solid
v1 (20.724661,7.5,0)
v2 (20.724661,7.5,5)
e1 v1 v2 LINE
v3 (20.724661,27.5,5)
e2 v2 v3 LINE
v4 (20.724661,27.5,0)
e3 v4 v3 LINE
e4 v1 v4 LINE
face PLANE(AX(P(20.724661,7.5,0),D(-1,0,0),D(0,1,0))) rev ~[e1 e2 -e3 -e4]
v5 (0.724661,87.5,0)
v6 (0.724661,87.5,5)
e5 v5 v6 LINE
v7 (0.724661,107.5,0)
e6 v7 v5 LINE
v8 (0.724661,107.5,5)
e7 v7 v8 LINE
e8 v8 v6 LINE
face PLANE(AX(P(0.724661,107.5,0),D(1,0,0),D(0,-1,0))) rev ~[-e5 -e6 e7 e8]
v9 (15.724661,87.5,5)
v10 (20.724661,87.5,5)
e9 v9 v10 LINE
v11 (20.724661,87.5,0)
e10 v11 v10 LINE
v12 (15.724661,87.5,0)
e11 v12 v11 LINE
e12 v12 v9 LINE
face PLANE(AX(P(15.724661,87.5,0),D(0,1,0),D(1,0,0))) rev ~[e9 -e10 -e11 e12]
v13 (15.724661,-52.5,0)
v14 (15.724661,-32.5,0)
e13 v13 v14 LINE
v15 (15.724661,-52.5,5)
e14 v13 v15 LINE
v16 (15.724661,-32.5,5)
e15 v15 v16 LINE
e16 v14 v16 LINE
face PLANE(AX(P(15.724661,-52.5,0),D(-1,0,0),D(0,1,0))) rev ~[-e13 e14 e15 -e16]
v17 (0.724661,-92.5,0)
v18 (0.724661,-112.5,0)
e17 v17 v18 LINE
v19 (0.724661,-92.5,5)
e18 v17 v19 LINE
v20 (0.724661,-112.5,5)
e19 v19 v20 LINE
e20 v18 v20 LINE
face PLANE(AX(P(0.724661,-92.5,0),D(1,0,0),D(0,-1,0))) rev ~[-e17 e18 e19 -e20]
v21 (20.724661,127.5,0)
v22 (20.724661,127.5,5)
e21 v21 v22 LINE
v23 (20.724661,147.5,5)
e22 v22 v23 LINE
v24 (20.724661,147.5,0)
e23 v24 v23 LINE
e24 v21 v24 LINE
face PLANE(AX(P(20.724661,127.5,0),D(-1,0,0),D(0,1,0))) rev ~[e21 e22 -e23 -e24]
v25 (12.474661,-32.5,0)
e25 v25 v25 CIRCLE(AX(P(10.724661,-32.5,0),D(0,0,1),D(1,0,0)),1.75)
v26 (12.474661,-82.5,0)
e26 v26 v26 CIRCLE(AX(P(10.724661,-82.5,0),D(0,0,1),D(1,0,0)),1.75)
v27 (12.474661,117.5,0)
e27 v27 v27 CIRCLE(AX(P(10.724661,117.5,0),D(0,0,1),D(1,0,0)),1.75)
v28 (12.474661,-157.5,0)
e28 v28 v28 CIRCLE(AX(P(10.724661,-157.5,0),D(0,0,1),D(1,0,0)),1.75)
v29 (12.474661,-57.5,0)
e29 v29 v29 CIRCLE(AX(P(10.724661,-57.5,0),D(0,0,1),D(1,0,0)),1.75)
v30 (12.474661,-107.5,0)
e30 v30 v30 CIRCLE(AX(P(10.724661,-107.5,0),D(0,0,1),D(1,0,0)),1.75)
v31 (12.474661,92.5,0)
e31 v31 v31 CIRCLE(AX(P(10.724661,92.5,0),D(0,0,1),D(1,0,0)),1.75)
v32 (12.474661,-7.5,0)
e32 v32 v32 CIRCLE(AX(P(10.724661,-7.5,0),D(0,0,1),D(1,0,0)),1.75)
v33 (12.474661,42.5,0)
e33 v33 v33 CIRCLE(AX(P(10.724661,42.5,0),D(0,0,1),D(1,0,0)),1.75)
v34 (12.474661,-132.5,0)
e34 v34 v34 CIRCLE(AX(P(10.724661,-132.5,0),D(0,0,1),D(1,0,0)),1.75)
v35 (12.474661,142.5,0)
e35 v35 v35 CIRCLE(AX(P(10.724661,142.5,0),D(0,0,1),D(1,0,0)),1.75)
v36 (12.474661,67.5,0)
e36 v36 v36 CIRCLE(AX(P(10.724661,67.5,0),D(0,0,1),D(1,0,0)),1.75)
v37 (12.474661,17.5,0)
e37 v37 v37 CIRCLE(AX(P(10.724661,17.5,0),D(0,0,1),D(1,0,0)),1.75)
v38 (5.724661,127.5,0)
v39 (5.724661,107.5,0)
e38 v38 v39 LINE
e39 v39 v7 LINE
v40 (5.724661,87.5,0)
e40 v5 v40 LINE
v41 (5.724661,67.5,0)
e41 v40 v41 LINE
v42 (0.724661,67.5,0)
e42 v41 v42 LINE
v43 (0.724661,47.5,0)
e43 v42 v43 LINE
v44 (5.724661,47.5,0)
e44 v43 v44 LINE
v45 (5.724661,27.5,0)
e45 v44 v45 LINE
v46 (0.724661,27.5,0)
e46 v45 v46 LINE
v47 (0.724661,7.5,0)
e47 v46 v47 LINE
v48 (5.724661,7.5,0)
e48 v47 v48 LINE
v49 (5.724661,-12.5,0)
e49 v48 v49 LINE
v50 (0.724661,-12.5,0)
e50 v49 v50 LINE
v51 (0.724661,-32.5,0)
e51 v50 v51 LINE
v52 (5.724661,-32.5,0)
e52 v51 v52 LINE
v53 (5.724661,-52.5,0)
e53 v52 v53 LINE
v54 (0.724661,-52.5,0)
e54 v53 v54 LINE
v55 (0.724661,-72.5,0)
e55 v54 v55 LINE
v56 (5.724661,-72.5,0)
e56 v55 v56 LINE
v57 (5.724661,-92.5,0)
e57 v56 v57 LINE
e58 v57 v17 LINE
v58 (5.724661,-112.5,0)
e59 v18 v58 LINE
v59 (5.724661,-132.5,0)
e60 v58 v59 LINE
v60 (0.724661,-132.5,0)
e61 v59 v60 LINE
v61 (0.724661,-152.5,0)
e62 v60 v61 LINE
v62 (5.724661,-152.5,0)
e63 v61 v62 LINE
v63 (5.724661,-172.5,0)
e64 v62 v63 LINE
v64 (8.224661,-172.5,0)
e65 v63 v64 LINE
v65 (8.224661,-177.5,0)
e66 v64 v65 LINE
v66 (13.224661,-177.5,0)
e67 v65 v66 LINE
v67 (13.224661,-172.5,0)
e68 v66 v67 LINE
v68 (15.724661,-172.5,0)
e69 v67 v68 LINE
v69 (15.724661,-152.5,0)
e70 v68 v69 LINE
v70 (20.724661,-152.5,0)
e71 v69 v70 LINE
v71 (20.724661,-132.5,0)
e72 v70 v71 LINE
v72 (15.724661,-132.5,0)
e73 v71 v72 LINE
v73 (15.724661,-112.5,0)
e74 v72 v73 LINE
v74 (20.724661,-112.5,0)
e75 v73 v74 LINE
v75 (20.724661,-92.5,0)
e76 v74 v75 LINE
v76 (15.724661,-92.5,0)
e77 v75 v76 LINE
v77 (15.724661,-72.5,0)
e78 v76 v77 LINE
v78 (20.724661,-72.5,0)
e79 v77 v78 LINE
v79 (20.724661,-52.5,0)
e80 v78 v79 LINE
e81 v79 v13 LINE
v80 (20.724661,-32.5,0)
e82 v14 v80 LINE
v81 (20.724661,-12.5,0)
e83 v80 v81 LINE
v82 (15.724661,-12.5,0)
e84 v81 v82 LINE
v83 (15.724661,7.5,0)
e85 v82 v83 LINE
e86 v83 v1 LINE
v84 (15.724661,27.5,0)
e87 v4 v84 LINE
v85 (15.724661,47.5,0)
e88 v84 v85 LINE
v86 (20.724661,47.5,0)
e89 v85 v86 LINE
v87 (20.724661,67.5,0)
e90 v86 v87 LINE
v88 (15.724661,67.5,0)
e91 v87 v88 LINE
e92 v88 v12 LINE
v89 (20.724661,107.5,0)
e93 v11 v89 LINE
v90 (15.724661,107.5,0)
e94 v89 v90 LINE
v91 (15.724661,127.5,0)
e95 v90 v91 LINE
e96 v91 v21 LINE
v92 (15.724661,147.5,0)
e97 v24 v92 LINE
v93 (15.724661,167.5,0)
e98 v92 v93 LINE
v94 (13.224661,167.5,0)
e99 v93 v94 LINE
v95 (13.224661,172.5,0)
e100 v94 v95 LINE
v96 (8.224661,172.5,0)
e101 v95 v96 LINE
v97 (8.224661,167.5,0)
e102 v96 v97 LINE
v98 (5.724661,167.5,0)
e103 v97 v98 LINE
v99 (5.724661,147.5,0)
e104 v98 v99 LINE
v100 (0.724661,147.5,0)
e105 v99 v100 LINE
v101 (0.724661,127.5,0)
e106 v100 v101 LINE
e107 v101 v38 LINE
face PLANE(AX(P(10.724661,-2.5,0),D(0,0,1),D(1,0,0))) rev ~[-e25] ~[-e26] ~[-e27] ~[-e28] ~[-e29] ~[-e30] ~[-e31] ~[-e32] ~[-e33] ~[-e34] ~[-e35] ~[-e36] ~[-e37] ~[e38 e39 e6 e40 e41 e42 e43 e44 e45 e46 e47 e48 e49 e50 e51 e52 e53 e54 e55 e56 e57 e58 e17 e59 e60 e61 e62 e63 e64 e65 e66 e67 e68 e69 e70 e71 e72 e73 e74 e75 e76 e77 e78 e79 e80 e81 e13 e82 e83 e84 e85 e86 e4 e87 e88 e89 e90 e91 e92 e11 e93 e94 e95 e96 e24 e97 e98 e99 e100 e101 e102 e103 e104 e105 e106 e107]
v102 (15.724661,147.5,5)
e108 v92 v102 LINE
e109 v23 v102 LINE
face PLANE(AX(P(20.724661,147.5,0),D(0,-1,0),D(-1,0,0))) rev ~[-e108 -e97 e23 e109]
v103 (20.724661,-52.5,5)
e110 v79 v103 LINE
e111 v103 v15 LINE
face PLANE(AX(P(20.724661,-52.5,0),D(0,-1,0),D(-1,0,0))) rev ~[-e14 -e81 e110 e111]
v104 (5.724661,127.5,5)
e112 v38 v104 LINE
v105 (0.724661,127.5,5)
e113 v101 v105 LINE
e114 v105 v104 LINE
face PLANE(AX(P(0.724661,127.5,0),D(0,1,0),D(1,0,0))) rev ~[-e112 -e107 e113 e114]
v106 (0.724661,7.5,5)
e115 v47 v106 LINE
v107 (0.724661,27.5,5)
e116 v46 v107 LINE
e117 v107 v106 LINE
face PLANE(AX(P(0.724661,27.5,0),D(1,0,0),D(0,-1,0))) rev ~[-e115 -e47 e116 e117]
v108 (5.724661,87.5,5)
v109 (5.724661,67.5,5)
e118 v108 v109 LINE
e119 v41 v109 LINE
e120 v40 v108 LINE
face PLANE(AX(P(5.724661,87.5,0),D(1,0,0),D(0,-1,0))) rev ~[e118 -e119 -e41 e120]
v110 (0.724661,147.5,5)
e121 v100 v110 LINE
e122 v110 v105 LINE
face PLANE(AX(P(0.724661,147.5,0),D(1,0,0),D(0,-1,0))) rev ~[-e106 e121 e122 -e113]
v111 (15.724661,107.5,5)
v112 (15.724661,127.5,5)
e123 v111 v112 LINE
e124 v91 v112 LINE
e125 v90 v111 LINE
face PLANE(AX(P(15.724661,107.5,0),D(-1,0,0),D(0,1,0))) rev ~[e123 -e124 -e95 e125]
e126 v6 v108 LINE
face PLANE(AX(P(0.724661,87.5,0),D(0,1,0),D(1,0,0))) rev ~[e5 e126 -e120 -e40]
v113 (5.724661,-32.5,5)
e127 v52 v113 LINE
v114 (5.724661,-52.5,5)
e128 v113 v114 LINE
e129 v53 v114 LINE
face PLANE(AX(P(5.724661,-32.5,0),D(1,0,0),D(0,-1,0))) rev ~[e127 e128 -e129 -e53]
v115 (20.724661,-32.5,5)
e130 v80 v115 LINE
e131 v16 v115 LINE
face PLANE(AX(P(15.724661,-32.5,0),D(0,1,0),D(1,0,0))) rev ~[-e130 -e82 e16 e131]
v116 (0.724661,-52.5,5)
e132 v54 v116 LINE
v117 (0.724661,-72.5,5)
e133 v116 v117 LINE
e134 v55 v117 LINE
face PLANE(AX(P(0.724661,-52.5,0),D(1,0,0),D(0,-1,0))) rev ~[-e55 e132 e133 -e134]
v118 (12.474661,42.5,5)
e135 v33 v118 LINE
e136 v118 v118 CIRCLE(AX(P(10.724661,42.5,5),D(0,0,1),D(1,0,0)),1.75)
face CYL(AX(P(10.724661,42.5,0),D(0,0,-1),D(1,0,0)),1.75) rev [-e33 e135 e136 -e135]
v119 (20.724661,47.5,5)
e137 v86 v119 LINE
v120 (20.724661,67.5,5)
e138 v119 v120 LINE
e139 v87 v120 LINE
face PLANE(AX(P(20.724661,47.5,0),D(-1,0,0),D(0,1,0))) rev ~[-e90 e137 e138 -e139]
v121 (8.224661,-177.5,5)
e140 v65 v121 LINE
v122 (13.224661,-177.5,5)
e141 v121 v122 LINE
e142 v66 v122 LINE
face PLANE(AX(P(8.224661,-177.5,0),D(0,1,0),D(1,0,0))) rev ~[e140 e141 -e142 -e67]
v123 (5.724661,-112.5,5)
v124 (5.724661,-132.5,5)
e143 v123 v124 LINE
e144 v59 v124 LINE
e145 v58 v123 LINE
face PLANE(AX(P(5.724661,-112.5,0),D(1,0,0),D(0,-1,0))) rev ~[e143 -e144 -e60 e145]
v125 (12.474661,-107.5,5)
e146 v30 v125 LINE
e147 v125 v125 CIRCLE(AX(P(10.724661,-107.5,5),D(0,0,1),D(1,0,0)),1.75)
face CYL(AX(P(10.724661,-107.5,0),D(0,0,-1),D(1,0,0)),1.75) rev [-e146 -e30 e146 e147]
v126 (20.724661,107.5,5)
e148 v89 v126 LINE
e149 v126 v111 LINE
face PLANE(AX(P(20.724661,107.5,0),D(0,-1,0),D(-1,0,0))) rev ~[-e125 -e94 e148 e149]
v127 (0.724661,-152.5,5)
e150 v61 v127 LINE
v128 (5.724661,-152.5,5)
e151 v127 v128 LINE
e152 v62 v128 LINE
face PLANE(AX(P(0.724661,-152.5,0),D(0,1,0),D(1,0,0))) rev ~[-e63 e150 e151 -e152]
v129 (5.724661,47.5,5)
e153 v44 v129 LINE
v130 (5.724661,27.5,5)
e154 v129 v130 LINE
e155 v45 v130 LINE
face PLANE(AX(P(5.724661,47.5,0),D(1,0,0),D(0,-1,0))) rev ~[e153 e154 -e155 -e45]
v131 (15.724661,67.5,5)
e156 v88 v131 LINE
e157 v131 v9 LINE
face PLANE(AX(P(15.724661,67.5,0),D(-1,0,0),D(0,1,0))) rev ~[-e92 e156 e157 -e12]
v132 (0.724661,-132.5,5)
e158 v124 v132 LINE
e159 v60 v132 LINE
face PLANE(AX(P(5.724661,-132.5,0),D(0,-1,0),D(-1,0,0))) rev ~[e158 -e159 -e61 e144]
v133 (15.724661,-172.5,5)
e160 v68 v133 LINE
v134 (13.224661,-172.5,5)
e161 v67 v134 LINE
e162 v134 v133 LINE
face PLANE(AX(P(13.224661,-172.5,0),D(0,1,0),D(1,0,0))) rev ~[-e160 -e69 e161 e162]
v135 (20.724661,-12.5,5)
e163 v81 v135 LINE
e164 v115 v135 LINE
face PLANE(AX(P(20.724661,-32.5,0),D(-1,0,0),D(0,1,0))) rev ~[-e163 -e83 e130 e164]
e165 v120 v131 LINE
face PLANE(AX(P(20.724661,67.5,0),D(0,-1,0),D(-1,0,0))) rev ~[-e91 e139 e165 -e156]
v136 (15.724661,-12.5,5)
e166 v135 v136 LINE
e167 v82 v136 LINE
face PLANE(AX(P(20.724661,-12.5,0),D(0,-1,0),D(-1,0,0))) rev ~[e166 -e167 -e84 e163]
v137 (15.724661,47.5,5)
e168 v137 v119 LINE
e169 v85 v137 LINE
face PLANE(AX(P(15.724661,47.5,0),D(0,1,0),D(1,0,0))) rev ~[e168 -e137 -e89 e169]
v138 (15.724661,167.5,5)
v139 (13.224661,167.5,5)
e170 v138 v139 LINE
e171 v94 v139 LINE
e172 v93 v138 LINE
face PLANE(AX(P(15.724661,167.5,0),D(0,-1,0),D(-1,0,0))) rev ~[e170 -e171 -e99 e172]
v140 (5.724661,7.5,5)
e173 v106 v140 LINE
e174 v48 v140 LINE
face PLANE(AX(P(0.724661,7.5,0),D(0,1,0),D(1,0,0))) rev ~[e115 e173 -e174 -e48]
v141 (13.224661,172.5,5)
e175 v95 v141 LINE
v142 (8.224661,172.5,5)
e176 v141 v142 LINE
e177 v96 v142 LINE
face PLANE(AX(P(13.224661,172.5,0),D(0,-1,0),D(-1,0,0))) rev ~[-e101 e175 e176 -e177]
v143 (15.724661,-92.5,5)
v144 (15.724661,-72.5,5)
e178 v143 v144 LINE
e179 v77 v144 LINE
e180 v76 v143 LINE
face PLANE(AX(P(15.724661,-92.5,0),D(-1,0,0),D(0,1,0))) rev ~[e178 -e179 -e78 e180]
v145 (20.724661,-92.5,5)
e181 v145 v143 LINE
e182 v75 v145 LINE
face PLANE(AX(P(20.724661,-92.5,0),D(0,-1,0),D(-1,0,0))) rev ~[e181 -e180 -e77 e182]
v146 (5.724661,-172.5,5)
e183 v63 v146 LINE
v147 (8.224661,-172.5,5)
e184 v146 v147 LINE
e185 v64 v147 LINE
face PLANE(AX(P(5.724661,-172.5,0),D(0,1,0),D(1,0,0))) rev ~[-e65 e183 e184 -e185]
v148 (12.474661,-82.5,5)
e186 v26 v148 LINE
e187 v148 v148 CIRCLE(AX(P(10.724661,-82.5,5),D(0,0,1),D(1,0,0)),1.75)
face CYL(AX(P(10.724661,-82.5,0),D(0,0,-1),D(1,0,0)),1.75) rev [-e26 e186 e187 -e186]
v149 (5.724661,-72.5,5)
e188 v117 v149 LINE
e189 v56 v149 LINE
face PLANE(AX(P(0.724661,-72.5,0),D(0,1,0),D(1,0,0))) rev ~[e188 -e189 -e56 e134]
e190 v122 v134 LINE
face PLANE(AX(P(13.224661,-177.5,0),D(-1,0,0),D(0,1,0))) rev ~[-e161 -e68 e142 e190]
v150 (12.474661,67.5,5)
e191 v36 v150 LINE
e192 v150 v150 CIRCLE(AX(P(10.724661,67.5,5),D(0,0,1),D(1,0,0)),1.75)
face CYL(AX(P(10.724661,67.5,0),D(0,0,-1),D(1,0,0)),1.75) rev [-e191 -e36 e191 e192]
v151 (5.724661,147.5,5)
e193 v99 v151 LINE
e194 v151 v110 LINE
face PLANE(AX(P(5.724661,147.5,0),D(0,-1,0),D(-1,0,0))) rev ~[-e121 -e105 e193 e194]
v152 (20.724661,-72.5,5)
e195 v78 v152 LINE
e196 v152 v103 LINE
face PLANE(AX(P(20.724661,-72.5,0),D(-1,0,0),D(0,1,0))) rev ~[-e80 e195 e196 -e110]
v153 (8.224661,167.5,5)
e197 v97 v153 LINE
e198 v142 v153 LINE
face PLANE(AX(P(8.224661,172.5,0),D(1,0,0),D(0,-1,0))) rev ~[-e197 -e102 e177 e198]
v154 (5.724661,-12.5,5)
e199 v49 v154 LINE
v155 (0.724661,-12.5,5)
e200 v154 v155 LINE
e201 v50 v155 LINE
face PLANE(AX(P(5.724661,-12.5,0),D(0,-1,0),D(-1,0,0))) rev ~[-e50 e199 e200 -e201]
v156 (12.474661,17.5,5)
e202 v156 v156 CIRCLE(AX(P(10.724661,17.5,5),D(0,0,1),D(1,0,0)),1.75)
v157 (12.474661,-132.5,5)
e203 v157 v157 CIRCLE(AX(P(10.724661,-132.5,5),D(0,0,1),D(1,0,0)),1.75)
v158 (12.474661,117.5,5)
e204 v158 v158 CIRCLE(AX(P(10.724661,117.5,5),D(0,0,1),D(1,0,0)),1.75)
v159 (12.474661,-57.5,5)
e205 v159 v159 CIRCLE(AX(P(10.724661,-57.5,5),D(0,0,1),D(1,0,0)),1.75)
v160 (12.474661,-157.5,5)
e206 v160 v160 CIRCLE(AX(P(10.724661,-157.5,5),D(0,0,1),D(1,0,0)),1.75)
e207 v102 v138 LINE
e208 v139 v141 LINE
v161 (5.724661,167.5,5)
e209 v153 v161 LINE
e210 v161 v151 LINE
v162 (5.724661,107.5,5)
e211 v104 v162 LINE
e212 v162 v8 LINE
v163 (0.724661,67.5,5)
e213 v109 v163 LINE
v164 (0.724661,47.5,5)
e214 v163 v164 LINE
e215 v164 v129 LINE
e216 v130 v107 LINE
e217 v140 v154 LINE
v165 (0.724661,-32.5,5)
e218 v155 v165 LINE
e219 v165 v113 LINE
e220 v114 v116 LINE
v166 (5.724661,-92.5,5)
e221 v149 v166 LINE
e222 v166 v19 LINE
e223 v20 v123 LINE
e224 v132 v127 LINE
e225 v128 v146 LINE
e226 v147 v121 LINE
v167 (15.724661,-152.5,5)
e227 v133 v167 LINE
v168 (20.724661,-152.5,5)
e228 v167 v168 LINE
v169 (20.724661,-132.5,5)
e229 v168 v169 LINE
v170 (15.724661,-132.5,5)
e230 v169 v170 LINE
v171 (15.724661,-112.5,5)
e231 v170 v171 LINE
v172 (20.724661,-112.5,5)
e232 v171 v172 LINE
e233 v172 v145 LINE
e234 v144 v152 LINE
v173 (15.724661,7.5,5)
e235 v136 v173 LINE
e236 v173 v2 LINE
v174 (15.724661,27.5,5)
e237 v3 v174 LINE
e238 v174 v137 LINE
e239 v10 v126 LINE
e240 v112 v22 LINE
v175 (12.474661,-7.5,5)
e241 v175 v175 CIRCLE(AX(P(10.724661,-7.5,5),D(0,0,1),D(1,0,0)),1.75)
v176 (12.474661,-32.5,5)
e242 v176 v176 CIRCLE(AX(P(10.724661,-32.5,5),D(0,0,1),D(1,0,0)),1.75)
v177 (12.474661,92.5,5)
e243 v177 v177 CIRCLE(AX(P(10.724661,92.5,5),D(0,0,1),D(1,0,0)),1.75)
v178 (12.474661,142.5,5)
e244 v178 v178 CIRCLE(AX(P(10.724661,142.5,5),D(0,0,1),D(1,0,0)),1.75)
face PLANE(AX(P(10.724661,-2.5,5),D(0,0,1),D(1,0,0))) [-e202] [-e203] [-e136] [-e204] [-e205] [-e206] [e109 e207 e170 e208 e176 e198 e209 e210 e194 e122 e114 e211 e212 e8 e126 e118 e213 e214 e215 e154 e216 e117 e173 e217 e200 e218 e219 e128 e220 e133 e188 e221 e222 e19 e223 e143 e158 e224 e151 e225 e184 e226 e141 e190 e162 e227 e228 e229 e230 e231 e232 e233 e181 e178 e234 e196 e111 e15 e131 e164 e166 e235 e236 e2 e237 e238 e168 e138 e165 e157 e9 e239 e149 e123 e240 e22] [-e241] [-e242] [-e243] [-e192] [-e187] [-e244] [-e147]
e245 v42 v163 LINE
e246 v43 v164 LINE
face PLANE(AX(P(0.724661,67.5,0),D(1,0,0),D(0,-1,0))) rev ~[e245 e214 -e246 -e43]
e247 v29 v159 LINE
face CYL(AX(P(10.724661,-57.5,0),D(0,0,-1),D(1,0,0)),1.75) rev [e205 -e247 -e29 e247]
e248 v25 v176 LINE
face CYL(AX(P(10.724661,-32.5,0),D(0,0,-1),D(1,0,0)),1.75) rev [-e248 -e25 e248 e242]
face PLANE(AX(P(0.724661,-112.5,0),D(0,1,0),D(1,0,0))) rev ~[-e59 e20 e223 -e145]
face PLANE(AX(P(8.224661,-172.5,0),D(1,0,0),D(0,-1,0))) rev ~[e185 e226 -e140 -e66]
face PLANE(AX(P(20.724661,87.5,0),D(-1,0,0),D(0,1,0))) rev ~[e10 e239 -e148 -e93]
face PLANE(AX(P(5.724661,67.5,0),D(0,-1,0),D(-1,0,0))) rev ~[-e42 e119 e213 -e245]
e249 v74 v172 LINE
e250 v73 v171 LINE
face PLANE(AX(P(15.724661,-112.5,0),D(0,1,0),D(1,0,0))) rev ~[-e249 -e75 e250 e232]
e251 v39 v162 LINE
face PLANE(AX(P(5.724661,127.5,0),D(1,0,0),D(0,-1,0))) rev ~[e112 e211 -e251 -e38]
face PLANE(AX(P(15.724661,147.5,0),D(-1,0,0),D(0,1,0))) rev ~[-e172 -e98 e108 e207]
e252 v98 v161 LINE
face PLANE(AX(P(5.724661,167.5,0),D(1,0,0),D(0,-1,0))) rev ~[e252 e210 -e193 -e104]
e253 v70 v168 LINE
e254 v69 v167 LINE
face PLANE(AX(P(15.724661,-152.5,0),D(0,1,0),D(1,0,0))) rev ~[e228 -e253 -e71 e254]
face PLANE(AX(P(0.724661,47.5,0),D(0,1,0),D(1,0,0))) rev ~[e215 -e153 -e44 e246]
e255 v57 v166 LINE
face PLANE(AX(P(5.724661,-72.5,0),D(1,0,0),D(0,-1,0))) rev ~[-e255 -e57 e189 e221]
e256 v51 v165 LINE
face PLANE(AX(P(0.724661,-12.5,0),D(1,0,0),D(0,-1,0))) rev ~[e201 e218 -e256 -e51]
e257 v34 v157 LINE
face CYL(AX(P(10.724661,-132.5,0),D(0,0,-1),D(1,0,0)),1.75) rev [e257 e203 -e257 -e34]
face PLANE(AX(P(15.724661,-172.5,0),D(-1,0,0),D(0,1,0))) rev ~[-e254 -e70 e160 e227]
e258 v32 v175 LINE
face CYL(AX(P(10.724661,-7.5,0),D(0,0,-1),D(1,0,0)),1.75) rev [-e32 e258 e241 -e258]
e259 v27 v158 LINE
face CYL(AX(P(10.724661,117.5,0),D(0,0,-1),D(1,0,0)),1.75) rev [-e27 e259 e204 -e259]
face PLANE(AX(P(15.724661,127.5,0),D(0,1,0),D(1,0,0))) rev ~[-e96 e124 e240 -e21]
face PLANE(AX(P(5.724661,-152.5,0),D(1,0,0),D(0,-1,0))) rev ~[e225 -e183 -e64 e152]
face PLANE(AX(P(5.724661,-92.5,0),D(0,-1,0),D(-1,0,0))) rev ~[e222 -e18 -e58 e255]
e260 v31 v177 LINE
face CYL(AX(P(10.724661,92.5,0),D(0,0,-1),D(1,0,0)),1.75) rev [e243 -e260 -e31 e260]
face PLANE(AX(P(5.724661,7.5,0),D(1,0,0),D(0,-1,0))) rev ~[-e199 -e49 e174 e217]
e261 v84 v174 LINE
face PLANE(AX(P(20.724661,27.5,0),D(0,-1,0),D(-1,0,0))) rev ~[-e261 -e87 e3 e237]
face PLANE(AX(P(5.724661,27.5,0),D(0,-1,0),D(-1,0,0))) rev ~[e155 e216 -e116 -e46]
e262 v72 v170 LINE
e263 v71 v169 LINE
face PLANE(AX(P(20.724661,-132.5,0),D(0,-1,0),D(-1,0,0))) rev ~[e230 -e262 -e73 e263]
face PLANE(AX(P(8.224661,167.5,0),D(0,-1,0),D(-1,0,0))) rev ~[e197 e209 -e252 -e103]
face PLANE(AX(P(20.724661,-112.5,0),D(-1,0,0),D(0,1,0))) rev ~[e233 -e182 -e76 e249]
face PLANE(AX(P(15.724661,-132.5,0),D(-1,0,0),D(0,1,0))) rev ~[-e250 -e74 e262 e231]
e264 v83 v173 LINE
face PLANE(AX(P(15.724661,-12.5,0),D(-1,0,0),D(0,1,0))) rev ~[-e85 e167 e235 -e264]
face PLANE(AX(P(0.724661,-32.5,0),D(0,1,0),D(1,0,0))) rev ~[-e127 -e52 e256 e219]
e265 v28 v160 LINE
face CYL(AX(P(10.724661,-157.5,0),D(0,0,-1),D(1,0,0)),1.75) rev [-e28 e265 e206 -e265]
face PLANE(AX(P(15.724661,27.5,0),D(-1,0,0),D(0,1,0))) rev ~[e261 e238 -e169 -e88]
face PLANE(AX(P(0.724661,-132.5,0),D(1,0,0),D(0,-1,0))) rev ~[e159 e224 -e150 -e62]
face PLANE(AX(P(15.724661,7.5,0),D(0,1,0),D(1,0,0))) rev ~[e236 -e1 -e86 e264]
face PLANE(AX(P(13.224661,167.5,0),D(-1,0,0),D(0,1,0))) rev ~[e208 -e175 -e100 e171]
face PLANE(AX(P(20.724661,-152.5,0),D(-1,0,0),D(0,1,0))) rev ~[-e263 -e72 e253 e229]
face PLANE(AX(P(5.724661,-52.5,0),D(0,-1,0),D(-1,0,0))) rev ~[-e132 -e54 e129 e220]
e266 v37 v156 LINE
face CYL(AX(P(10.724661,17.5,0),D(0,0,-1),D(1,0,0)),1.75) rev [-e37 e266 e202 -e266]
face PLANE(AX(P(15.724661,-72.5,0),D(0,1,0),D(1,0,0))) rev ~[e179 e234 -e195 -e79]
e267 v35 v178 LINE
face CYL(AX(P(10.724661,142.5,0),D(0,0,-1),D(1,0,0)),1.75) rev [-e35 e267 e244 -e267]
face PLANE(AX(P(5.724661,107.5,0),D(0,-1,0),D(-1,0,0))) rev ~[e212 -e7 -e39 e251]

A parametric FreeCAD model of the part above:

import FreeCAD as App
import Part
import Sketcher

doc = App.newDocument("Part")
body = doc.addObject("PartDesign::Body", "Body")

sketch1 = doc.addObject("Sketcher::SketchObject", "Sketch")
body.addObject(sketch1)
sketch1.AttachmentSupport = (doc.XY_Plane, [""])
sketch1.MapMode = "FlatFace"
sketch1.addGeometry(Part.LineSegment(App.Vector(8.224661, 172.5, 0), App.Vector(8.224661, 167.5, 0)), False)
sketch1.addGeometry(Part.LineSegment(App.Vector(8.224661, 167.5, 0), App.Vector(5.724661, 167.5, 0)), False)
sketch1.addGeometry(Part.LineSegment(App.Vector(5.724661, 167.5, 0), App.Vector(5.724661, 147.5, 0)), False)
sketch1.addGeometry(Part.LineSegment(App.Vector(5.724661, 147.5, 0), App.Vector(0.724661, 147.5, 0)), False)
sketch1.addGeometry(Part.LineSegment(App.Vector(0.724661, 147.5, 0), App.Vector(0.724661, 127.5, 0)), False)
sketch1.addGeometry(Part.LineSegment(App.Vector(0.724661, 127.5, 0), App.Vector(5.724661, 127.5, 0)), False)
sketch1.addGeometry(Part.LineSegment(App.Vector(5.724661, 127.5, 0), App.Vector(5.724661, 107.5, 0)), False)
sketch1.addGeometry(Part.LineSegment(App.Vector(5.724661, 107.5, 0), App.Vector(0.724661, 107.5, 0)), False)
sketch1.addGeometry(Part.LineSegment(App.Vector(0.724661, 107.5, 0), App.Vector(0.724661, 87.5, 0)), False)
sketch1.addGeometry(Part.LineSegment(App.Vector(0.724661, 87.5, 0), App.Vector(5.724661, 87.5, 0)), False)
sketch1.addGeometry(Part.LineSegment(App.Vector(5.724661, 87.5, 0), App.Vector(5.724661, 67.5, 0)), False)
sketch1.addGeometry(Part.LineSegment(App.Vector(5.724661, 67.5, 0), App.Vector(0.724661, 67.5, 0)), False)
sketch1.addGeometry(Part.LineSegment(App.Vector(0.724661, 67.5, 0), App.Vector(0.724661, 47.5, 0)), False)
sketch1.addGeometry(Part.LineSegment(App.Vector(0.724661, 47.5, 0), App.Vector(5.724661, 47.5, 0)), False)
sketch1.addGeometry(Part.LineSegment(App.Vector(5.724661, 47.5, 0), App.Vector(5.724661, 27.5, 0)), False)
sketch1.addGeometry(Part.LineSegment(App.Vector(5.724661, 27.5, 0), App.Vector(0.724661, 27.5, 0)), False)
sketch1.addGeometry(Part.LineSegment(App.Vector(0.724661, 27.5, 0), App.Vector(0.724661, 7.5, 0)), False)
sketch1.addGeometry(Part.LineSegment(App.Vector(0.724661, 7.5, 0), App.Vector(5.724661, 7.5, 0)), False)
sketch1.addGeometry(Part.LineSegment(App.Vector(5.724661, 7.5, 0), App.Vector(5.724661, -12.5, 0)), False)
sketch1.addGeometry(Part.LineSegment(App.Vector(5.724661, -12.5, 0), App.Vector(0.724661, -12.5, 0)), False)
sketch1.addGeometry(Part.LineSegment(App.Vector(0.724661, -12.5, 0), App.Vector(0.724661, -32.5, 0)), False)
sketch1.addGeometry(Part.LineSegment(App.Vector(0.724661, -32.5, 0), App.Vector(5.724661, -32.5, 0)), False)
sketch1.addGeometry(Part.LineSegment(App.Vector(5.724661, -32.5, 0), App.Vector(5.724661, -52.5, 0)), False)
sketch1.addGeometry(Part.LineSegment(App.Vector(5.724661, -52.5, 0), App.Vector(0.724661, -52.5, 0)), False)
sketch1.addGeometry(Part.LineSegment(App.Vector(0.724661, -52.5, 0), App.Vector(0.724661, -72.5, 0)), False)
sketch1.addGeometry(Part.LineSegment(App.Vector(0.724661, -72.5, 0), App.Vector(5.724661, -72.5, 0)), False)
sketch1.addGeometry(Part.LineSegment(App.Vector(5.724661, -72.5, 0), App.Vector(5.724661, -92.5, 0)), False)
sketch1.addGeometry(Part.LineSegment(App.Vector(5.724661, -92.5, 0), App.Vector(0.724661, -92.5, 0)), False)
sketch1.addGeometry(Part.LineSegment(App.Vector(0.724661, -92.5, 0), App.Vector(0.724661, -112.5, 0)), False)
sketch1.addGeometry(Part.LineSegment(App.Vector(0.724661, -112.5, 0), App.Vector(5.724661, -112.5, 0)), False)
sketch1.addGeometry(Part.LineSegment(App.Vector(5.724661, -112.5, 0), App.Vector(5.724661, -132.5, 0)), False)
sketch1.addGeometry(Part.LineSegment(App.Vector(5.724661, -132.5, 0), App.Vector(0.724661, -132.5, 0)), False)
sketch1.addGeometry(Part.LineSegment(App.Vector(0.724661, -132.5, 0), App.Vector(0.724661, -152.5, 0)), False)
sketch1.addGeometry(Part.LineSegment(App.Vector(0.724661, -152.5, 0), App.Vector(5.724661, -152.5, 0)), False)
sketch1.addGeometry(Part.LineSegment(App.Vector(5.724661, -152.5, 0), App.Vector(5.724661, -172.5, 0)), False)
sketch1.addGeometry(Part.LineSegment(App.Vector(5.724661, -172.5, 0), App.Vector(8.224661, -172.5, 0)), False)
sketch1.addGeometry(Part.LineSegment(App.Vector(8.224661, -172.5, 0), App.Vector(8.224661, -177.5, 0)), False)
sketch1.addGeometry(Part.LineSegment(App.Vector(8.224661, -177.5, 0), App.Vector(13.224661, -177.5, 0)), False)
sketch1.addGeometry(Part.LineSegment(App.Vector(13.224661, -177.5, 0), App.Vector(13.224661, -172.5, 0)), False)
sketch1.addGeometry(Part.LineSegment(App.Vector(13.224661, -172.5, 0), App.Vector(15.724661, -172.5, 0)), False)
sketch1.addGeometry(Part.LineSegment(App.Vector(15.724661, -172.5, 0), App.Vector(15.724661, -152.5, 0)), False)
sketch1.addGeometry(Part.LineSegment(App.Vector(15.724661, -152.5, 0), App.Vector(20.724661, -152.5, 0)), False)
sketch1.addGeometry(Part.LineSegment(App.Vector(20.724661, -152.5, 0), App.Vector(20.724661, -132.5, 0)), False)
sketch1.addGeometry(Part.LineSegment(App.Vector(20.724661, -132.5, 0), App.Vector(15.724661, -132.5, 0)), False)
sketch1.addGeometry(Part.LineSegment(App.Vector(15.724661, -132.5, 0), App.Vector(15.724661, -112.5, 0)), False)
sketch1.addGeometry(Part.LineSegment(App.Vector(15.724661, -112.5, 0), App.Vector(20.724661, -112.5, 0)), False)
sketch1.addGeometry(Part.LineSegment(App.Vector(20.724661, -112.5, 0), App.Vector(20.724661, -92.5, 0)), False)
sketch1.addGeometry(Part.LineSegment(App.Vector(20.724661, -92.5, 0), App.Vector(15.724661, -92.5, 0)), False)
sketch1.addGeometry(Part.LineSegment(App.Vector(15.724661, -92.5, 0), App.Vector(15.724661, -72.5, 0)), False)
sketch1.addGeometry(Part.LineSegment(App.Vector(15.724661, -72.5, 0), App.Vector(20.724661, -72.5, 0)), False)
sketch1.addGeometry(Part.LineSegment(App.Vector(20.724661, -72.5, 0), App.Vector(20.724661, -52.5, 0)), False)
sketch1.addGeometry(Part.LineSegment(App.Vector(20.724661, -52.5, 0), App.Vector(15.724661, -52.5, 0)), False)
sketch1.addGeometry(Part.LineSegment(App.Vector(15.724661, -52.5, 0), App.Vector(15.724661, -32.5, 0)), False)
sketch1.addGeometry(Part.LineSegment(App.Vector(15.724661, -32.5, 0), App.Vector(20.724661, -32.5, 0)), False)
sketch1.addGeometry(Part.LineSegment(App.Vector(20.724661, -32.5, 0), App.Vector(20.724661, -12.5, 0)), False)
sketch1.addGeometry(Part.LineSegment(App.Vector(20.724661, -12.5, 0), App.Vector(15.724661, -12.5, 0)), False)
sketch1.addGeometry(Part.LineSegment(App.Vector(15.724661, -12.5, 0), App.Vector(15.724661, 7.5, 0)), False)
sketch1.addGeometry(Part.LineSegment(App.Vector(15.724661, 7.5, 0), App.Vector(20.724661, 7.5, 0)), False)
sketch1.addGeometry(Part.LineSegment(App.Vector(20.724661, 7.5, 0), App.Vector(20.724661, 27.5, 0)), False)
sketch1.addGeometry(Part.LineSegment(App.Vector(20.724661, 27.5, 0), App.Vector(15.724661, 27.5, 0)), False)
sketch1.addGeometry(Part.LineSegment(App.Vector(15.724661, 27.5, 0), App.Vector(15.724661, 47.5, 0)), False)
sketch1.addGeometry(Part.LineSegment(App.Vector(15.724661, 47.5, 0), App.Vector(20.724661, 47.5, 0)), False)
sketch1.addGeometry(Part.LineSegment(App.Vector(20.724661, 47.5, 0), App.Vector(20.724661, 67.5, 0)), False)
sketch1.addGeometry(Part.LineSegment(App.Vector(20.724661, 67.5, 0), App.Vector(15.724661, 67.5, 0)), False)
sketch1.addGeometry(Part.LineSegment(App.Vector(15.724661, 67.5, 0), App.Vector(15.724661, 87.5, 0)), False)
sketch1.addGeometry(Part.LineSegment(App.Vector(15.724661, 87.5, 0), App.Vector(20.724661, 87.5, 0)), False)
sketch1.addGeometry(Part.LineSegment(App.Vector(20.724661, 87.5, 0), App.Vector(20.724661, 107.5, 0)), False)
sketch1.addGeometry(Part.LineSegment(App.Vector(20.724661, 107.5, 0), App.Vector(15.724661, 107.5, 0)), False)
sketch1.addGeometry(Part.LineSegment(App.Vector(15.724661, 107.5, 0), App.Vector(15.724661, 127.5, 0)), False)
sketch1.addGeometry(Part.LineSegment(App.Vector(15.724661, 127.5, 0), App.Vector(20.724661, 127.5, 0)), False)
sketch1.addGeometry(Part.LineSegment(App.Vector(20.724661, 127.5, 0), App.Vector(20.724661, 147.5, 0)), False)
sketch1.addGeometry(Part.LineSegment(App.Vector(20.724661, 147.5, 0), App.Vector(15.724661, 147.5, 0)), False)
sketch1.addGeometry(Part.LineSegment(App.Vector(15.724661, 147.5, 0), App.Vector(15.724661, 167.5, 0)), False)
sketch1.addGeometry(Part.LineSegment(App.Vector(15.724661, 167.5, 0), App.Vector(13.224661, 167.5, 0)), False)
sketch1.addGeometry(Part.LineSegment(App.Vector(13.224661, 167.5, 0), App.Vector(13.224661, 172.5, 0)), False)
sketch1.addGeometry(Part.LineSegment(App.Vector(13.224661, 172.5, 0), App.Vector(8.224661, 172.5, 0)), False)
sketch1.addGeometry(Part.Circle(App.Vector(10.724661, -157.5, 0), App.Vector(0, 0, 1), 1.75), False)
sketch1.addGeometry(Part.Circle(App.Vector(10.724661, -132.5, 0), App.Vector(0, 0, 1), 1.75), False)
sketch1.addGeometry(Part.Circle(App.Vector(10.724661, -107.5, 0), App.Vector(0, 0, 1), 1.75), False)
sketch1.addGeometry(Part.Circle(App.Vector(10.724661, -82.5, 0), App.Vector(0, 0, 1), 1.75), False)
sketch1.addGeometry(Part.Circle(App.Vector(10.724661, -57.5, 0), App.Vector(0, 0, 1), 1.75), False)
sketch1.addGeometry(Part.Circle(App.Vector(10.724661, -32.5, 0), App.Vector(0, 0, 1), 1.75), False)
sketch1.addGeometry(Part.Circle(App.Vector(10.724661, -7.5, 0), App.Vector(0, 0, 1), 1.75), False)
sketch1.addGeometry(Part.Circle(App.Vector(10.724661, 17.5, 0), App.Vector(0, 0, 1), 1.75), False)
sketch1.addGeometry(Part.Circle(App.Vector(10.724661, 42.5, 0), App.Vector(0, 0, 1), 1.75), False)
sketch1.addGeometry(Part.Circle(App.Vector(10.724661, 67.5, 0), App.Vector(0, 0, 1), 1.75), False)
sketch1.addGeometry(Part.Circle(App.Vector(10.724661, 92.5, 0), App.Vector(0, 0, 1), 1.75), False)
sketch1.addGeometry(Part.Circle(App.Vector(10.724661, 117.5, 0), App.Vector(0, 0, 1), 1.75), False)
sketch1.addGeometry(Part.Circle(App.Vector(10.724661, 142.5, 0), App.Vector(0, 0, 1), 1.75), False)
sketch1.addConstraint(Sketcher.Constraint("Coincident", 0, 2, 1, 1))
sketch1.addConstraint(Sketcher.Constraint("Coincident", 1, 2, 2, 1))
sketch1.addConstraint(Sketcher.Constraint("Coincident", 2, 2, 3, 1))
sketch1.addConstraint(Sketcher.Constraint("Coincident", 3, 2, 4, 1))
sketch1.addConstraint(Sketcher.Constraint("Coincident", 4, 2, 5, 1))
sketch1.addConstraint(Sketcher.Constraint("Coincident", 5, 2, 6, 1))
sketch1.addConstraint(Sketcher.Constraint("Coincident", 6, 2, 7, 1))
sketch1.addConstraint(Sketcher.Constraint("Coincident", 7, 2, 8, 1))
sketch1.addConstraint(Sketcher.Constraint("Coincident", 8, 2, 9, 1))
sketch1.addConstraint(Sketcher.Constraint("Coincident", 9, 2, 10, 1))
sketch1.addConstraint(Sketcher.Constraint("Coincident", 10, 2, 11, 1))
sketch1.addConstraint(Sketcher.Constraint("Coincident", 11, 2, 12, 1))
sketch1.addConstraint(Sketcher.Constraint("Coincident", 12, 2, 13, 1))
sketch1.addConstraint(Sketcher.Constraint("Coincident", 13, 2, 14, 1))
sketch1.addConstraint(Sketcher.Constraint("Coincident", 14, 2, 15, 1))
sketch1.addConstraint(Sketcher.Constraint("Coincident", 15, 2, 16, 1))
sketch1.addConstraint(Sketcher.Constraint("Coincident", 16, 2, 17, 1))
sketch1.addConstraint(Sketcher.Constraint("Coincident", 17, 2, 18, 1))
sketch1.addConstraint(Sketcher.Constraint("Coincident", 18, 2, 19, 1))
sketch1.addConstraint(Sketcher.Constraint("Coincident", 19, 2, 20, 1))
sketch1.addConstraint(Sketcher.Constraint("Coincident", 20, 2, 21, 1))
sketch1.addConstraint(Sketcher.Constraint("Coincident", 21, 2, 22, 1))
sketch1.addConstraint(Sketcher.Constraint("Coincident", 22, 2, 23, 1))
sketch1.addConstraint(Sketcher.Constraint("Coincident", 23, 2, 24, 1))
sketch1.addConstraint(Sketcher.Constraint("Coincident", 24, 2, 25, 1))
sketch1.addConstraint(Sketcher.Constraint("Coincident", 25, 2, 26, 1))
sketch1.addConstraint(Sketcher.Constraint("Coincident", 26, 2, 27, 1))
sketch1.addConstraint(Sketcher.Constraint("Coincident", 27, 2, 28, 1))
sketch1.addConstraint(Sketcher.Constraint("Coincident", 28, 2, 29, 1))
sketch1.addConstraint(Sketcher.Constraint("Coincident", 29, 2, 30, 1))
sketch1.addConstraint(Sketcher.Constraint("Coincident", 30, 2, 31, 1))
sketch1.addConstraint(Sketcher.Constraint("Coincident", 31, 2, 32, 1))
sketch1.addConstraint(Sketcher.Constraint("Coincident", 32, 2, 33, 1))
sketch1.addConstraint(Sketcher.Constraint("Coincident", 33, 2, 34, 1))
sketch1.addConstraint(Sketcher.Constraint("Coincident", 34, 2, 35, 1))
sketch1.addConstraint(Sketcher.Constraint("Coincident", 35, 2, 36, 1))
sketch1.addConstraint(Sketcher.Constraint("Coincident", 36, 2, 37, 1))
sketch1.addConstraint(Sketcher.Constraint("Coincident", 37, 2, 38, 1))
sketch1.addConstraint(Sketcher.Constraint("Coincident", 38, 2, 39, 1))
sketch1.addConstraint(Sketcher.Constraint("Coincident", 39, 2, 40, 1))
sketch1.addConstraint(Sketcher.Constraint("Coincident", 40, 2, 41, 1))
sketch1.addConstraint(Sketcher.Constraint("Coincident", 41, 2, 42, 1))
sketch1.addConstraint(Sketcher.Constraint("Coincident", 42, 2, 43, 1))
sketch1.addConstraint(Sketcher.Constraint("Coincident", 43, 2, 44, 1))
sketch1.addConstraint(Sketcher.Constraint("Coincident", 44, 2, 45, 1))
sketch1.addConstraint(Sketcher.Constraint("Coincident", 45, 2, 46, 1))
sketch1.addConstraint(Sketcher.Constraint("Coincident", 46, 2, 47, 1))
sketch1.addConstraint(Sketcher.Constraint("Coincident", 47, 2, 48, 1))
sketch1.addConstraint(Sketcher.Constraint("Coincident", 48, 2, 49, 1))
sketch1.addConstraint(Sketcher.Constraint("Coincident", 49, 2, 50, 1))
sketch1.addConstraint(Sketcher.Constraint("Coincident", 50, 2, 51, 1))
sketch1.addConstraint(Sketcher.Constraint("Coincident", 51, 2, 52, 1))
sketch1.addConstraint(Sketcher.Constraint("Coincident", 52, 2, 53, 1))
sketch1.addConstraint(Sketcher.Constraint("Coincident", 53, 2, 54, 1))
sketch1.addConstraint(Sketcher.Constraint("Coincident", 54, 2, 55, 1))
sketch1.addConstraint(Sketcher.Constraint("Coincident", 55, 2, 56, 1))
sketch1.addConstraint(Sketcher.Constraint("Coincident", 56, 2, 57, 1))
sketch1.addConstraint(Sketcher.Constraint("Coincident", 57, 2, 58, 1))
sketch1.addConstraint(Sketcher.Constraint("Coincident", 58, 2, 59, 1))
sketch1.addConstraint(Sketcher.Constraint("Coincident", 59, 2, 60, 1))
sketch1.addConstraint(Sketcher.Constraint("Coincident", 60, 2, 61, 1))
sketch1.addConstraint(Sketcher.Constraint("Coincident", 61, 2, 62, 1))
sketch1.addConstraint(Sketcher.Constraint("Coincident", 62, 2, 63, 1))
sketch1.addConstraint(Sketcher.Constraint("Coincident", 63, 2, 64, 1))
sketch1.addConstraint(Sketcher.Constraint("Coincident", 64, 2, 65, 1))
sketch1.addConstraint(Sketcher.Constraint("Coincident", 65, 2, 66, 1))
sketch1.addConstraint(Sketcher.Constraint("Coincident", 66, 2, 67, 1))
sketch1.addConstraint(Sketcher.Constraint("Coincident", 67, 2, 68, 1))
sketch1.addConstraint(Sketcher.Constraint("Coincident", 68, 2, 69, 1))
sketch1.addConstraint(Sketcher.Constraint("Coincident", 69, 2, 70, 1))
sketch1.addConstraint(Sketcher.Constraint("Coincident", 70, 2, 71, 1))
sketch1.addConstraint(Sketcher.Constraint("Coincident", 71, 2, 72, 1))
sketch1.addConstraint(Sketcher.Constraint("Coincident", 72, 2, 73, 1))
sketch1.addConstraint(Sketcher.Constraint("Coincident", 73, 2, 74, 1))
sketch1.addConstraint(Sketcher.Constraint("Coincident", 74, 2, 75, 1))
sketch1.addConstraint(Sketcher.Constraint("Coincident", 75, 2, 0, 1))
sketch1.addConstraint(Sketcher.Constraint("Vertical", 0))
sketch1.addConstraint(Sketcher.Constraint("Horizontal", 1))
sketch1.addConstraint(Sketcher.Constraint("Vertical", 2))
sketch1.addConstraint(Sketcher.Constraint("Horizontal", 3))
sketch1.addConstraint(Sketcher.Constraint("Vertical", 4))
sketch1.addConstraint(Sketcher.Constraint("Horizontal", 5))
sketch1.addConstraint(Sketcher.Constraint("Vertical", 6))
sketch1.addConstraint(Sketcher.Constraint("Horizontal", 7))
sketch1.addConstraint(Sketcher.Constraint("Vertical", 8))
sketch1.addConstraint(Sketcher.Constraint("Horizontal", 9))
sketch1.addConstraint(Sketcher.Constraint("Vertical", 10))
sketch1.addConstraint(Sketcher.Constraint("Horizontal", 11))
sketch1.addConstraint(Sketcher.Constraint("Vertical", 12))
sketch1.addConstraint(Sketcher.Constraint("Horizontal", 13))
sketch1.addConstraint(Sketcher.Constraint("Vertical", 14))
sketch1.addConstraint(Sketcher.Constraint("Horizontal", 15))
sketch1.addConstraint(Sketcher.Constraint("Vertical", 16))
sketch1.addConstraint(Sketcher.Constraint("Horizontal", 17))
sketch1.addConstraint(Sketcher.Constraint("Vertical", 18))
sketch1.addConstraint(Sketcher.Constraint("Horizontal", 19))
sketch1.addConstraint(Sketcher.Constraint("Vertical", 20))
sketch1.addConstraint(Sketcher.Constraint("Horizontal", 21))
sketch1.addConstraint(Sketcher.Constraint("Vertical", 22))
sketch1.addConstraint(Sketcher.Constraint("Horizontal", 23))
sketch1.addConstraint(Sketcher.Constraint("Vertical", 24))
sketch1.addConstraint(Sketcher.Constraint("Horizontal", 25))
sketch1.addConstraint(Sketcher.Constraint("Vertical", 26))
sketch1.addConstraint(Sketcher.Constraint("Horizontal", 27))
sketch1.addConstraint(Sketcher.Constraint("Vertical", 28))
sketch1.addConstraint(Sketcher.Constraint("Horizontal", 29))
sketch1.addConstraint(Sketcher.Constraint("Vertical", 30))
sketch1.addConstraint(Sketcher.Constraint("Horizontal", 31))
sketch1.addConstraint(Sketcher.Constraint("Vertical", 32))
sketch1.addConstraint(Sketcher.Constraint("Horizontal", 33))
sketch1.addConstraint(Sketcher.Constraint("Vertical", 34))
sketch1.addConstraint(Sketcher.Constraint("Horizontal", 35))
sketch1.addConstraint(Sketcher.Constraint("Vertical", 36))
sketch1.addConstraint(Sketcher.Constraint("Horizontal", 37))
sketch1.addConstraint(Sketcher.Constraint("Vertical", 38))
sketch1.addConstraint(Sketcher.Constraint("Horizontal", 39))
sketch1.addConstraint(Sketcher.Constraint("Vertical", 40))
sketch1.addConstraint(Sketcher.Constraint("Horizontal", 41))
sketch1.addConstraint(Sketcher.Constraint("Vertical", 42))
sketch1.addConstraint(Sketcher.Constraint("Horizontal", 43))
sketch1.addConstraint(Sketcher.Constraint("Vertical", 44))
sketch1.addConstraint(Sketcher.Constraint("Horizontal", 45))
sketch1.addConstraint(Sketcher.Constraint("Vertical", 46))
sketch1.addConstraint(Sketcher.Constraint("Horizontal", 47))
sketch1.addConstraint(Sketcher.Constraint("Vertical", 48))
sketch1.addConstraint(Sketcher.Constraint("Horizontal", 49))
sketch1.addConstraint(Sketcher.Constraint("Vertical", 50))
sketch1.addConstraint(Sketcher.Constraint("Horizontal", 51))
sketch1.addConstraint(Sketcher.Constraint("Vertical", 52))
sketch1.addConstraint(Sketcher.Constraint("Horizontal", 53))
sketch1.addConstraint(Sketcher.Constraint("Vertical", 54))
sketch1.addConstraint(Sketcher.Constraint("Horizontal", 55))
sketch1.addConstraint(Sketcher.Constraint("Vertical", 56))
sketch1.addConstraint(Sketcher.Constraint("Horizontal", 57))
sketch1.addConstraint(Sketcher.Constraint("Vertical", 58))
sketch1.addConstraint(Sketcher.Constraint("Horizontal", 59))
sketch1.addConstraint(Sketcher.Constraint("Vertical", 60))
sketch1.addConstraint(Sketcher.Constraint("Horizontal", 61))
sketch1.addConstraint(Sketcher.Constraint("Vertical", 62))
sketch1.addConstraint(Sketcher.Constraint("Horizontal", 63))
sketch1.addConstraint(Sketcher.Constraint("Vertical", 64))
sketch1.addConstraint(Sketcher.Constraint("Horizontal", 65))
sketch1.addConstraint(Sketcher.Constraint("Vertical", 66))
sketch1.addConstraint(Sketcher.Constraint("Horizontal", 67))
sketch1.addConstraint(Sketcher.Constraint("Vertical", 68))
sketch1.addConstraint(Sketcher.Constraint("Horizontal", 69))
sketch1.addConstraint(Sketcher.Constraint("Vertical", 70))
sketch1.addConstraint(Sketcher.Constraint("Horizontal", 71))
sketch1.addConstraint(Sketcher.Constraint("Vertical", 72))
sketch1.addConstraint(Sketcher.Constraint("Horizontal", 73))
sketch1.addConstraint(Sketcher.Constraint("Vertical", 74))
sketch1.addConstraint(Sketcher.Constraint("Horizontal", 75))
sketch1.addConstraint(Sketcher.Constraint("Equal", 76, 77))
sketch1.addConstraint(Sketcher.Constraint("Equal", 77, 78))
sketch1.addConstraint(Sketcher.Constraint("Equal", 78, 79))
sketch1.addConstraint(Sketcher.Constraint("Equal", 79, 80))
sketch1.addConstraint(Sketcher.Constraint("Equal", 80, 81))
sketch1.addConstraint(Sketcher.Constraint("Equal", 81, 82))
sketch1.addConstraint(Sketcher.Constraint("Equal", 82, 83))
sketch1.addConstraint(Sketcher.Constraint("Equal", 83, 84))
sketch1.addConstraint(Sketcher.Constraint("Equal", 84, 85))
sketch1.addConstraint(Sketcher.Constraint("Equal", 85, 86))
sketch1.addConstraint(Sketcher.Constraint("Equal", 86, 87))
sketch1.addConstraint(Sketcher.Constraint("Equal", 87, 88))
sketch1.addConstraint(Sketcher.Constraint("Symmetric", 38, 2, 74, 2, -1))
sketch1.addConstraint(Sketcher.Constraint("Symmetric", 35, 2, 75, 2, -1))
sketch1.addConstraint(Sketcher.Constraint("Horizontal", 85, 3, 10, 2))
sketch1.addConstraint(Sketcher.Constraint("Horizontal", 81, 3, 20, 2))
sketch1.addConstraint(Sketcher.Constraint("Horizontal", 77, 3, 30, 2))
sketch1.addConstraint(Sketcher.Constraint("Horizontal", 33, 2, 40, 2))
sketch1.addConstraint(Sketcher.Constraint("Horizontal", 31, 2, 42, 2))
sketch1.addConstraint(Sketcher.Constraint("Horizontal", 29, 2, 44, 2))
sketch1.addConstraint(Sketcher.Constraint("Horizontal", 27, 2, 46, 2))
sketch1.addConstraint(Sketcher.Constraint("Horizontal", 25, 2, 48, 2))
sketch1.addConstraint(Sketcher.Constraint("Horizontal", 23, 2, 50, 2))
sketch1.addConstraint(Sketcher.Constraint("Horizontal", 21, 2, 52, 2))
sketch1.addConstraint(Sketcher.Constraint("Horizontal", 19, 2, 54, 2))
sketch1.addConstraint(Sketcher.Constraint("Horizontal", 17, 2, 56, 2))
sketch1.addConstraint(Sketcher.Constraint("Horizontal", 15, 2, 58, 2))
sketch1.addConstraint(Sketcher.Constraint("Horizontal", 13, 2, 60, 2))
sketch1.addConstraint(Sketcher.Constraint("Horizontal", 11, 2, 62, 2))
sketch1.addConstraint(Sketcher.Constraint("Horizontal", 9, 2, 64, 2))
sketch1.addConstraint(Sketcher.Constraint("Horizontal", 7, 2, 66, 2))
sketch1.addConstraint(Sketcher.Constraint("Horizontal", 5, 2, 68, 2))
sketch1.addConstraint(Sketcher.Constraint("Horizontal", 3, 2, 70, 2))
sketch1.addConstraint(Sketcher.Constraint("Horizontal", 1, 2, 72, 2))
sketch1.addConstraint(Sketcher.Constraint("Vertical", 76, 3, 77, 3))
sketch1.addConstraint(Sketcher.Constraint("Vertical", 77, 3, 78, 3))
sketch1.addConstraint(Sketcher.Constraint("Vertical", 78, 3, 79, 3))
sketch1.addConstraint(Sketcher.Constraint("Vertical", 79, 3, 80, 3))
sketch1.addConstraint(Sketcher.Constraint("Vertical", 80, 3, 81, 3))
sketch1.addConstraint(Sketcher.Constraint("Vertical", 81, 3, 82, 3))
sketch1.addConstraint(Sketcher.Constraint("Vertical", 82, 3, 83, 3))
sketch1.addConstraint(Sketcher.Constraint("Vertical", 83, 3, 84, 3))
sketch1.addConstraint(Sketcher.Constraint("Vertical", 84, 3, 85, 3))
sketch1.addConstraint(Sketcher.Constraint("Vertical", 85, 3, 86, 3))
sketch1.addConstraint(Sketcher.Constraint("Vertical", 86, 3, 87, 3))
sketch1.addConstraint(Sketcher.Constraint("Vertical", 87, 3, 88, 3))
sketch1.addConstraint(Sketcher.Constraint("Vertical", 2, 2, 5, 2))
sketch1.addConstraint(Sketcher.Constraint("Vertical", 4, 2, 7, 2))
sketch1.addConstraint(Sketcher.Constraint("Vertical", 6, 2, 9, 2))
sketch1.addConstraint(Sketcher.Constraint("Vertical", 8, 2, 11, 2))
sketch1.addConstraint(Sketcher.Constraint("Vertical", 10, 2, 13, 2))
sketch1.addConstraint(Sketcher.Constraint("Vertical", 12, 2, 15, 2))
sketch1.addConstraint(Sketcher.Constraint("Vertical", 14, 2, 17, 2))
sketch1.addConstraint(Sketcher.Constraint("Vertical", 16, 2, 19, 2))
sketch1.addConstraint(Sketcher.Constraint("Vertical", 18, 2, 21, 2))
sketch1.addConstraint(Sketcher.Constraint("Vertical", 20, 2, 23, 2))
sketch1.addConstraint(Sketcher.Constraint("Vertical", 22, 2, 25, 2))
sketch1.addConstraint(Sketcher.Constraint("Vertical", 24, 2, 27, 2))
sketch1.addConstraint(Sketcher.Constraint("Vertical", 26, 2, 29, 2))
sketch1.addConstraint(Sketcher.Constraint("Vertical", 28, 2, 31, 2))
sketch1.addConstraint(Sketcher.Constraint("Vertical", 30, 2, 33, 2))
sketch1.addConstraint(Sketcher.Constraint("Vertical", 40, 2, 43, 2))
sketch1.addConstraint(Sketcher.Constraint("Vertical", 42, 2, 45, 2))
sketch1.addConstraint(Sketcher.Constraint("Vertical", 44, 2, 47, 2))
sketch1.addConstraint(Sketcher.Constraint("Vertical", 46, 2, 49, 2))
sketch1.addConstraint(Sketcher.Constraint("Vertical", 48, 2, 51, 2))
sketch1.addConstraint(Sketcher.Constraint("Vertical", 50, 2, 53, 2))
sketch1.addConstraint(Sketcher.Constraint("Vertical", 52, 2, 55, 2))
sketch1.addConstraint(Sketcher.Constraint("Vertical", 54, 2, 57, 2))
sketch1.addConstraint(Sketcher.Constraint("Vertical", 56, 2, 59, 2))
sketch1.addConstraint(Sketcher.Constraint("Vertical", 58, 2, 61, 2))
sketch1.addConstraint(Sketcher.Constraint("Vertical", 60, 2, 63, 2))
sketch1.addConstraint(Sketcher.Constraint("Vertical", 62, 2, 65, 2))
sketch1.addConstraint(Sketcher.Constraint("Vertical", 64, 2, 67, 2))
sketch1.addConstraint(Sketcher.Constraint("Vertical", 66, 2, 69, 2))
sketch1.addConstraint(Sketcher.Constraint("Vertical", 68, 2, 71, 2))
sketch1.addConstraint(Sketcher.Constraint("Equal", 33, 37))
sketch1.addConstraint(Sketcher.Constraint("Equal", 35, 39))
sketch1.addConstraint(Sketcher.Constraint("Equal", 37, 41))
sketch1.addConstraint(Sketcher.Constraint("Equal", 75, 0))
sketch1.addConstraint(Sketcher.Constraint("Equal", 2, 4))
sketch1.addConstraint(Sketcher.Constraint("Equal", 4, 6))
sketch1.addConstraint(Sketcher.Constraint("Equal", 6, 8))
sketch1.addConstraint(Sketcher.Constraint("Equal", 8, 10))
sketch1.addConstraint(Sketcher.Constraint("Equal", 10, 12))
sketch1.addConstraint(Sketcher.Constraint("Equal", 12, 14))
sketch1.addConstraint(Sketcher.Constraint("Equal", 14, 16))
sketch1.addConstraint(Sketcher.Constraint("Equal", 16, 18))
sketch1.addConstraint(Sketcher.Constraint("Equal", 18, 20))
sketch1.addConstraint(Sketcher.Constraint("Equal", 20, 22))
sketch1.addConstraint(Sketcher.Constraint("Equal", 22, 24))
sketch1.addConstraint(Sketcher.Constraint("Equal", 24, 26))
sketch1.addConstraint(Sketcher.Constraint("Equal", 26, 28))
sketch1.addConstraint(Sketcher.Constraint("Equal", 28, 30))
sketch1.addConstraint(Sketcher.Constraint("Equal", 30, 32))
sketch1.addConstraint(Sketcher.Constraint("Equal", 32, 34))
sketch1.addConstraint(Sketcher.Constraint("Equal", 0, 36))
sketch1.addConstraint(Sketcher.Constraint("Diameter", 76, 3.5))
sketch1.addConstraint(Sketcher.Constraint("DistanceX", 3, 2, 3, 1, 5.0))
sketch1.addConstraint(Sketcher.Constraint("DistanceY", 2, 2, 2, 1, 20.0))
sketch1.addConstraint(Sketcher.Constraint("DistanceX", 1, 2, 1, 1, 2.5))
sketch1.addConstraint(Sketcher.Constraint("DistanceY", 76, 3, -1, 1, 157.5))
sketch1.addConstraint(Sketcher.Constraint("DistanceY", 78, 3, -1, 1, 107.5))
sketch1.addConstraint(Sketcher.Constraint("DistanceY", 79, 3, -1, 1, 82.5))
sketch1.addConstraint(Sketcher.Constraint("DistanceY", 80, 3, -1, 1, 57.5))
sketch1.addConstraint(Sketcher.Constraint("DistanceY", 82, 3, -1, 1, 7.5))
sketch1.addConstraint(Sketcher.Constraint("DistanceY", -1, 1, 83, 3, 17.5))
sketch1.addConstraint(Sketcher.Constraint("DistanceY", -1, 1, 84, 3, 42.5))
sketch1.addConstraint(Sketcher.Constraint("DistanceY", -1, 1, 86, 3, 92.5))
sketch1.addConstraint(Sketcher.Constraint("DistanceY", -1, 1, 87, 3, 117.5))
sketch1.addConstraint(Sketcher.Constraint("DistanceY", -1, 1, 88, 3, 142.5))
sketch1.addConstraint(Sketcher.Constraint("DistanceX", -1, 1, 76, 3, 10.724661))
sketch1.addConstraint(Sketcher.Constraint("DistanceX", -1, 1, 0, 2, 8.224661))
pad1 = doc.addObject("PartDesign::Pad", "Pad")
body.addObject(pad1)
pad1.Profile = sketch1
pad1.Length = 5

doc.recompute()
